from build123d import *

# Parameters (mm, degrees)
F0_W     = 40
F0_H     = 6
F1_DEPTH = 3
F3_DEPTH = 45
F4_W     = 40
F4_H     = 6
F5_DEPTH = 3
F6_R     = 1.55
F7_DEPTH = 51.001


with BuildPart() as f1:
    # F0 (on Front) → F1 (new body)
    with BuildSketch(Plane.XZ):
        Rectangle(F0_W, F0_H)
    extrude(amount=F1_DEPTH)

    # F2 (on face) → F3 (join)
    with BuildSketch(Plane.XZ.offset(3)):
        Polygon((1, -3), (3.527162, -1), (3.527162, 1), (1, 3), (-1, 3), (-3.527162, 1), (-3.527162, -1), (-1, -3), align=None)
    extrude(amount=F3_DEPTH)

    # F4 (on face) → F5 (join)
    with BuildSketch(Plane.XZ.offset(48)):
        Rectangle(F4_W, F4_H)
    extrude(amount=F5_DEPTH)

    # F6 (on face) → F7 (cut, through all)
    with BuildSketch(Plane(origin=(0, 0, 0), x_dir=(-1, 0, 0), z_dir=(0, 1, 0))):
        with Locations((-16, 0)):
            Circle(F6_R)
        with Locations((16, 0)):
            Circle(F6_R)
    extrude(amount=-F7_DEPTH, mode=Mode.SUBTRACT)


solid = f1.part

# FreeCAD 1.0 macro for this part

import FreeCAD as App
import Part
import Sketcher

V = App.Vector

doc = App.newDocument("Part")
body = doc.addObject("PartDesign::Body", "Body")

# Sketch on XZ plane
sketch1 = body.newObject("Sketcher::SketchObject", "Sketch")
sketch1.AttachmentSupport = (doc.getObject("XZ_Plane"), [""])
sketch1.MapMode = "FlatFace"
sketch1.addGeometry(Part.LineSegment(V(-20, 3, 0), V(-20, -3, 0)), False)
sketch1.addGeometry(Part.LineSegment(V(-20, -3, 0), V(20, -3, 0)), False)
sketch1.addGeometry(Part.LineSegment(V(20, -3, 0), V(20, 3, 0)), False)
sketch1.addGeometry(Part.LineSegment(V(20, 3, 0), V(-20, 3, 0)), False)
sketch1.addConstraint(Sketcher.Constraint("Coincident", 0, 2, 1, 1))
sketch1.addConstraint(Sketcher.Constraint("Coincident", 1, 2, 2, 1))
sketch1.addConstraint(Sketcher.Constraint("Coincident", 2, 2, 3, 1))
sketch1.addConstraint(Sketcher.Constraint("Coincident", 3, 2, 0, 1))
sketch1.addConstraint(Sketcher.Constraint("Vertical", 0))
sketch1.addConstraint(Sketcher.Constraint("Horizontal", 1))
sketch1.addConstraint(Sketcher.Constraint("Vertical", 2))
sketch1.addConstraint(Sketcher.Constraint("Horizontal", 3))
sketch1.addConstraint(Sketcher.Constraint("Symmetric", 0, 2, 2, 2, -1, 1))
sketch1.addConstraint(Sketcher.Constraint("DistanceX", 1, 1, 1, 2, 40.0))
sketch1.addConstraint(Sketcher.Constraint("DistanceY", 0, 2, 0, 1, 6.0))
pad1 = body.newObject("PartDesign::Pad", "Pad")
pad1.Profile = sketch1
pad1.Length = 3

# Sketch on XZ plane
sketch2 = body.newObject("Sketcher::SketchObject", "Sketch001")
sketch2.AttachmentSupport = (doc.getObject("XZ_Plane"), [""])
sketch2.MapMode = "FlatFace"
sketch2.AttachmentOffset = App.Placement(V(0, 0, 3), App.Rotation())
sketch2.addGeometry(Part.LineSegment(V(1, -3, 0), V(3.5, -1, 0)), False)
sketch2.addGeometry(Part.LineSegment(V(3.5, -1, 0), V(3.5, 1, 0)), False)
sketch2.addGeometry(Part.LineSegment(V(3.5, 1, 0), V(1, 3, 0)), False)
sketch2.addGeometry(Part.LineSegment(V(1, 3, 0), V(-1, 3, 0)), False)
sketch2.addGeometry(Part.LineSegment(V(-1, 3, 0), V(-3.5, 1, 0)), False)
sketch2.addGeometry(Part.LineSegment(V(-3.5, 1, 0), V(-3.5, -1, 0)), False)
sketch2.addGeometry(Part.LineSegment(V(-3.5, -1, 0), V(-1, -3, 0)), False)
sketch2.addGeometry(Part.LineSegment(V(-1, -3, 0), V(1, -3, 0)), False)
sketch2.addConstraint(Sketcher.Constraint("Coincident", 0, 2, 1, 1))
sketch2.addConstraint(Sketcher.Constraint("Coincident", 1, 2, 2, 1))
sketch2.addConstraint(Sketcher.Constraint("Coincident", 2, 2, 3, 1))
sketch2.addConstraint(Sketcher.Constraint("Coincident", 3, 2, 4, 1))
sketch2.addConstraint(Sketcher.Constraint("Coincident", 4, 2, 5, 1))
sketch2.addConstraint(Sketcher.Constraint("Coincident", 5, 2, 6, 1))
sketch2.addConstraint(Sketcher.Constraint("Coincident", 6, 2, 7, 1))
sketch2.addConstraint(Sketcher.Constraint("Coincident", 7, 2, 0, 1))
sketch2.addConstraint(Sketcher.Constraint("Vertical", 1))
sketch2.addConstraint(Sketcher.Constraint("Horizontal", 3))
sketch2.addConstraint(Sketcher.Constraint("Vertical", 5))
sketch2.addConstraint(Sketcher.Constraint("Horizontal", 7))
sketch2.addConstraint(Sketcher.Constraint("Symmetric", 0, 2, 4, 2, -1, 1))
sketch2.addConstraint(Sketcher.Constraint("Symmetric", 2, 2, 6, 2, -1, 1))
sketch2.addConstraint(Sketcher.Constraint("Parallel", 0, 4))
sketch2.addConstraint(Sketcher.Constraint("Parallel", 2, 6))
sketch2.addConstraint(Sketcher.Constraint("Horizontal", 1, 2, 4, 2))
sketch2.addConstraint(Sketcher.Constraint("Vertical", 3, 2, 6, 2))
sketch2.addConstraint(Sketcher.Constraint("Equal", 7, 1))
sketch2.addConstraint(Sketcher.Constraint("DistanceX", 3, 2, 3, 1, 2.0))
sketch2.addConstraint(Sketcher.Constraint("DistanceY", -1, 1, 2, 2, 3.0))
sketch2.addConstraint(Sketcher.Constraint("Distance", 0, 3.222817))
pad2 = body.newObject("PartDesign::Pad", "Pad001")
pad2.Profile = sketch2
pad2.Length = 45

# Sketch on XZ plane
sketch3 = body.newObject("Sketcher::SketchObject", "Sketch002")
sketch3.AttachmentSupport = (doc.getObject("XZ_Plane"), [""])
sketch3.MapMode = "FlatFace"
sketch3.AttachmentOffset = App.Placement(V(0, 0, 48), App.Rotation())
sketch3.addGeometry(Part.LineSegment(V(-20, 3, 0), V(-20, -3, 0)), False)
sketch3.addGeometry(Part.LineSegment(V(-20, -3, 0), V(20, -3, 0)), False)
sketch3.addGeometry(Part.LineSegment(V(20, -3, 0), V(20, 3, 0)), False)
sketch3.addGeometry(Part.LineSegment(V(20, 3, 0), V(-20, 3, 0)), False)
sketch3.addConstraint(Sketcher.Constraint("Coincident", 0, 2, 1, 1))
sketch3.addConstraint(Sketcher.Constraint("Coincident", 1, 2, 2, 1))
sketch3.addConstraint(Sketcher.Constraint("Coincident", 2, 2, 3, 1))
sketch3.addConstraint(Sketcher.Constraint("Coincident", 3, 2, 0, 1))
sketch3.addConstraint(Sketcher.Constraint("Vertical", 0))
sketch3.addConstraint(Sketcher.Constraint("Horizontal", 1))
sketch3.addConstraint(Sketcher.Constraint("Vertical", 2))
sketch3.addConstraint(Sketcher.Constraint("Horizontal", 3))
sketch3.addConstraint(Sketcher.Constraint("Symmetric", 0, 2, 2, 2, -1, 1))
sketch3.addConstraint(Sketcher.Constraint("DistanceX", 1, 1, 1, 2, 40.0))
sketch3.addConstraint(Sketcher.Constraint("DistanceY", 0, 2, 0, 1, 6.0))
pad3 = body.newObject("PartDesign::Pad", "Pad002")
pad3.Profile = sketch3
pad3.Length = 3

# Sketch on XZ plane
sketch4 = body.newObject("Sketcher::SketchObject", "Sketch003")
sketch4.AttachmentSupport = (doc.getObject("XZ_Plane"), [""])
sketch4.MapMode = "FlatFace"
sketch4.addGeometry(Part.Circle(V(16, 0, 0), V(0, 0, 1), 1.6), False)
sketch4.addGeometry(Part.Circle(V(-16, 0, 0), V(0, 0, 1), 1.6), False)
sketch4.addConstraint(Sketcher.Constraint("Equal", 0, 1))
sketch4.addConstraint(Sketcher.Constraint("Symmetric", 0, 3, 1, 3, -1, 1))
sketch4.addConstraint(Sketcher.Constraint("PointOnObject", 0, 3, -1))
sketch4.addConstraint(Sketcher.Constraint("Diameter", 0, 3.1))
sketch4.addConstraint(Sketcher.Constraint("DistanceX", -1, 1, 0, 3, 16.0))
pocket1 = body.newObject("PartDesign::Pocket", "Pocket")
pocket1.Profile = sketch4
pocket1.Type = "ThroughAll"
pocket1.Reversed = True

doc.recompute()
